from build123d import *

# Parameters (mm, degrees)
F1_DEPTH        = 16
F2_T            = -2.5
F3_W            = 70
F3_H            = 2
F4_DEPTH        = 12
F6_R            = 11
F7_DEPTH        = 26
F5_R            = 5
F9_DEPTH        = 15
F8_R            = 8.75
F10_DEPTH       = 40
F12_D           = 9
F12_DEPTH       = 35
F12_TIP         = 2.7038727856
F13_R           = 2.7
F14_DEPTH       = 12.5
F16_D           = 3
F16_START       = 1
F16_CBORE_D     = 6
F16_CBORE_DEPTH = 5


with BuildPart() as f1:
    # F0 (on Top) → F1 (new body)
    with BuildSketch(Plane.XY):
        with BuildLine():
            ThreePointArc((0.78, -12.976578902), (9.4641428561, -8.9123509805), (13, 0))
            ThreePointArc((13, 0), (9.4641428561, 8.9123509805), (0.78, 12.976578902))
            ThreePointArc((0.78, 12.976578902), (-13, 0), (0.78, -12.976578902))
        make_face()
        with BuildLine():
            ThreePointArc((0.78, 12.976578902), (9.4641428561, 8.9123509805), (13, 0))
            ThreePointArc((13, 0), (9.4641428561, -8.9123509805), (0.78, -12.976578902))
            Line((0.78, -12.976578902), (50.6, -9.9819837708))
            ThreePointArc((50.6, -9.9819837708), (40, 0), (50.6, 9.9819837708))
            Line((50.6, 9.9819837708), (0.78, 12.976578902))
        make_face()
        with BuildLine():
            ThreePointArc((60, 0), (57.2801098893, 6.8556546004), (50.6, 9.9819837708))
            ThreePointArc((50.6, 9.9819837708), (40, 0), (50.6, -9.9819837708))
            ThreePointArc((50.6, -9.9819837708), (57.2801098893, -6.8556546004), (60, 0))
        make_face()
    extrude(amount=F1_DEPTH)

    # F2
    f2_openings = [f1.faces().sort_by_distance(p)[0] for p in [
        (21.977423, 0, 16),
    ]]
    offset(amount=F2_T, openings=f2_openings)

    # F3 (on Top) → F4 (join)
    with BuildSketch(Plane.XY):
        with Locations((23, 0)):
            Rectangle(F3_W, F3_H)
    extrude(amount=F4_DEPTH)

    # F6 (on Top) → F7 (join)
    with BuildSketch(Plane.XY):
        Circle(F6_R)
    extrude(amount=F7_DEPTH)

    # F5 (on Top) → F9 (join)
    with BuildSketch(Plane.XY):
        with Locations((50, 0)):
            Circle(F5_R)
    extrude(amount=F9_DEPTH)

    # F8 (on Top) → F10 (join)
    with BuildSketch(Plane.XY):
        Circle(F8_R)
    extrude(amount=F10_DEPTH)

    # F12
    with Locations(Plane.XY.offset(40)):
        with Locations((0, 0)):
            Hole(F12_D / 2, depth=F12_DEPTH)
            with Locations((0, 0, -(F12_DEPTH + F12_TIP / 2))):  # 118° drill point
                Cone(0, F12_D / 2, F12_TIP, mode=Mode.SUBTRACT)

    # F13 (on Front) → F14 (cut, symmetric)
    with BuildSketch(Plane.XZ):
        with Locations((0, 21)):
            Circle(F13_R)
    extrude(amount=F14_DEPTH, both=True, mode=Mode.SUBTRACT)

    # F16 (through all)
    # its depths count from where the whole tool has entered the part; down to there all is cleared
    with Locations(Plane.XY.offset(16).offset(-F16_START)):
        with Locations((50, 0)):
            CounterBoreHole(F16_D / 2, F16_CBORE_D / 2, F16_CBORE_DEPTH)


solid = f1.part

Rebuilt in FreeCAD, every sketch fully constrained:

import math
import FreeCAD as App
import Part
import Sketcher
from FreeCAD import Vector
Q = App.Units.Quantity


def faces_at(feature, points):
    """Names of the faces that lie closest to the given points."""
    faces = feature.Shape.Faces
    near = lambda p: min(range(len(faces)), key=lambda i: faces[i].distToShape(Part.Vertex(*p))[0])
    return sorted({f"Face{near(p) + 1}" for p in points})


def add_polygon(sketch, points):
    """Adds a closed chain of lines whose ends are joined by coincident constraints."""
    first, n = sketch.GeometryCount, len(points)
    for a, b in zip(points, points[1:] + points[:1]):
        sketch.addGeometry(Part.LineSegment(App.Vector(*a, 0), App.Vector(*b, 0)), False)
    for i in range(n):
        sketch.addConstraint(Sketcher.Constraint("Coincident", first + i, 2, first + (i + 1) % n, 1))

doc = App.newDocument("Part")
params = doc.addObject("Spreadsheet::Sheet", "Params")
for row, (alias, value) in enumerate([
    ("sketch1_radius", "13 mm"),
    ("sketch1_radius2", "10 mm"),
    ("pad1_length", "16 mm"),
    ("thickness_wall", "2.5 mm"),
    ("sketch2_width", "70 mm"),
    ("sketch2_height", "2 mm"),
    ("pad2_length", "12 mm"),
    ("sketch3_diameter", "22 mm"),
    ("pad3_length", "26 mm"),
    ("sketch4_diameter", "10 mm"),
    ("pad4_length", "15 mm"),
    ("sketch5_diameter", "17.5 mm"),
    ("pad5_length", "40 mm"),
    ("sketch6_diameter", "9 mm"),
    ("hole_diameter", "9 mm"),
    ("hole_depth", "35 mm"),
    ("sketch7_diameter", "5.4 mm"),
    ("pocket1_length", "25 mm"),
    ("sketch8_diameter", "3 mm"),
    ("hole2_diameter", "3 mm"),
    ("hole2_cbore_diameter", "6 mm"),
    ("hole2_cbore_depth", "5 mm"),
], start=1):
    params.set(f"A{row}", alias)
    params.set(f"B{row}", "=" + value)
    params.setAlias(f"B{row}", alias)

body = doc.addObject("PartDesign::Body", "Body")

# Sketch on XY plane
sketch1 = body.newObject("Sketcher::SketchObject", "Sketch")
sketch1.AttachmentSupport = (doc.getObject("XY_Plane"), [""])
sketch1.MapMode = "FlatFace"
sketch1.addGeometry([
    Part.ArcOfCircle(Part.Circle(Vector(0, 0, 0), Vector(0, 0, 1), 13), math.radians(87), math.radians(273)),  # 0
    Part.LineSegment(Vector(1, -13, 0), Vector(51, -10, 0)),  # 1
    Part.ArcOfCircle(Part.Circle(Vector(50, 0, 0), Vector(0, 0, 1), 10), math.radians(-87), math.radians(0)),  # 2
    Part.ArcOfCircle(Part.Circle(Vector(50, 0, 0), Vector(0, 0, 1), 10), math.radians(0), math.radians(87)),  # 3
    Part.LineSegment(Vector(51, 10, 0), Vector(1, 13, 0)),  # 4
], False)
sketch1.addConstraint([
    Sketcher.Constraint("Tangent", 0, 2, 1, 1),
    Sketcher.Constraint("Tangent", 1, 2, 2, 1),
    Sketcher.Constraint("Tangent", 2, 2, 3, 1),
    Sketcher.Constraint("Tangent", 3, 2, 4, 1),
    Sketcher.Constraint("Tangent", 4, 2, 0, 1),
    Sketcher.Constraint("Coincident", 0, 3, -1, 1),
    Sketcher.Constraint("Equal", 2, 3),
    Sketcher.Constraint("PointOnObject", 2, 3, -1),
    Sketcher.Constraint("PointOnObject", 2, 2, -1),
    Sketcher.Constraint("Radius", 0, Q("13 mm")),
    Sketcher.Constraint("Radius", 2, Q("10 mm")),
    Sketcher.Constraint("DistanceX", -1, 1, 2, 3, Q("50 mm")),
])
sketch1.setExpression("Constraints[9]", "Params.sketch1_radius")
sketch1.setExpression("Constraints[10]", "Params.sketch1_radius2")
pad1 = body.newObject("PartDesign::Pad", "Pad")
pad1.Profile = sketch1
pad1.setExpression("Length", "Params.pad1_length")
doc.recompute()

thickness = body.newObject("PartDesign::Thickness", "Thickness")
thickness.Base = (pad1, faces_at(pad1, [(23.5, 0, 16)]))
thickness.setExpression("Value", "Params.thickness_wall")
thickness.Reversed = True
thickness.Join = "Arc"

# Sketch on XY plane
sketch2 = body.newObject("Sketcher::SketchObject", "Sketch001")
sketch2.AttachmentSupport = (doc.getObject("XY_Plane"), [""])
sketch2.MapMode = "FlatFace"
add_polygon(sketch2, [(-12, 1), (-12, -1), (58, -1), (58, 1)])  # lines 0-3
sketch2.addConstraint([
    Sketcher.Constraint("Vertical", 0),
    Sketcher.Constraint("Horizontal", 1),
    Sketcher.Constraint("Vertical", 2),
    Sketcher.Constraint("Horizontal", 3),
    Sketcher.Constraint("DistanceX", 1, 1, 1, 2, Q("70 mm")),
    Sketcher.Constraint("DistanceY", 0, 2, 0, 1, Q("2 mm")),
    Sketcher.Constraint("DistanceX", 0, 2, -1, 1, Q("12 mm")),
    Sketcher.Constraint("DistanceY", 0, 2, -1, 1, Q("1 mm")),
])
sketch2.setExpression("Constraints[8]", "Params.sketch2_width")
sketch2.setExpression("Constraints[9]", "Params.sketch2_height")
pad2 = body.newObject("PartDesign::Pad", "Pad001")
pad2.Profile = sketch2
pad2.setExpression("Length", "Params.pad2_length")

# Sketch on XY plane
sketch3 = body.newObject("Sketcher::SketchObject", "Sketch002")
sketch3.AttachmentSupport = (doc.getObject("XY_Plane"), [""])
sketch3.MapMode = "FlatFace"
sketch3.addGeometry(Part.Circle(Vector(0, 0, 0), Vector(0, 0, 1), 11), False)
sketch3.addConstraint([
    Sketcher.Constraint("Coincident", 0, 3, -1, 1),
    Sketcher.Constraint("Diameter", 0, Q("22 mm")),
])
sketch3.setExpression("Constraints[1]", "Params.sketch3_diameter")
pad3 = body.newObject("PartDesign::Pad", "Pad002")
pad3.Profile = sketch3
pad3.setExpression("Length", "Params.pad3_length")

# Sketch on XY plane
sketch4 = body.newObject("Sketcher::SketchObject", "Sketch003")
sketch4.AttachmentSupport = (doc.getObject("XY_Plane"), [""])
sketch4.MapMode = "FlatFace"
sketch4.addGeometry(Part.Circle(Vector(50, 0, 0), Vector(0, 0, 1), 5), False)
sketch4.addConstraint([
    Sketcher.Constraint("PointOnObject", 0, 3, -1),
    Sketcher.Constraint("Diameter", 0, Q("10 mm")),
    Sketcher.Constraint("DistanceX", -1, 1, 0, 3, Q("50 mm")),
])
sketch4.setExpression("Constraints[1]", "Params.sketch4_diameter")
pad4 = body.newObject("PartDesign::Pad", "Pad003")
pad4.Profile = sketch4
pad4.setExpression("Length", "Params.pad4_length")

# Sketch on XY plane
sketch5 = body.newObject("Sketcher::SketchObject", "Sketch004")
sketch5.AttachmentSupport = (doc.getObject("XY_Plane"), [""])
sketch5.MapMode = "FlatFace"
sketch5.addGeometry(Part.Circle(Vector(0, 0, 0), Vector(0, 0, 1), 9), False)
sketch5.addConstraint([
    Sketcher.Constraint("Coincident", 0, 3, -1, 1),
    Sketcher.Constraint("Diameter", 0, Q("17.5 mm")),
])
sketch5.setExpression("Constraints[1]", "Params.sketch5_diameter")
pad5 = body.newObject("PartDesign::Pad", "Pad004")
pad5.Profile = sketch5
pad5.setExpression("Length", "Params.pad5_length")

# Sketch on XY plane
sketch6 = body.newObject("Sketcher::SketchObject", "Sketch005")
sketch6.AttachmentSupport = (doc.getObject("XY_Plane"), [""])
sketch6.MapMode = "FlatFace"
sketch6.AttachmentOffset = App.Placement(Vector(0, 0, 40), App.Rotation())
sketch6.addGeometry(Part.Circle(Vector(0, 0, 0), Vector(0, 0, 1), 4.5), False)
sketch6.addConstraint([
    Sketcher.Constraint("Coincident", 0, 3, -1, 1),
    Sketcher.Constraint("Diameter", 0, Q("9 mm")),
])
sketch6.setExpression("Constraints[1]", "Params.sketch6_diameter")
doc.recompute()
hole = body.newObject("PartDesign::Hole", "Hole")
hole.Profile = sketch6
hole.ThreadType = "None"
hole.setExpression("Diameter", "Params.hole_diameter")
hole.DepthType = "Dimension"
hole.setExpression("Depth", "Params.hole_depth")
hole.DrillPoint = "Angled"
hole.DrillPointAngle = 118

# Sketch on XZ plane
sketch7 = body.newObject("Sketcher::SketchObject", "Sketch006")
sketch7.AttachmentSupport = (doc.getObject("XZ_Plane"), [""])
sketch7.MapMode = "FlatFace"
sketch7.addGeometry(Part.Circle(Vector(0, 21, 0), Vector(0, 0, 1), 2.7), False)
sketch7.addConstraint([
    Sketcher.Constraint("PointOnObject", 0, 3, -2),
    Sketcher.Constraint("Diameter", 0, Q("5.4 mm")),
    Sketcher.Constraint("DistanceY", -1, 1, 0, 3, Q("21 mm")),
])
sketch7.setExpression("Constraints[1]", "Params.sketch7_diameter")
pocket1 = body.newObject("PartDesign::Pocket", "Pocket")
pocket1.Profile = sketch7
pocket1.setExpression("Length", "Params.pocket1_length")
pocket1.Midplane = True

# Sketch on XY plane
sketch8 = body.newObject("Sketcher::SketchObject", "Sketch007")
sketch8.AttachmentSupport = (doc.getObject("XY_Plane"), [""])
sketch8.MapMode = "FlatFace"
sketch8.AttachmentOffset = App.Placement(Vector(0, 0, 15), App.Rotation())
sketch8.addGeometry(Part.Circle(Vector(50, 0, 0), Vector(0, 0, 1), 1.5), False)
sketch8.addConstraint([
    Sketcher.Constraint("PointOnObject", 0, 3, -1),
    Sketcher.Constraint("Diameter", 0, Q("3 mm")),
    Sketcher.Constraint("DistanceX", -1, 1, 0, 3, Q("50 mm")),
])
sketch8.setExpression("Constraints[1]", "Params.sketch8_diameter")
doc.recompute()
hole2 = body.newObject("PartDesign::Hole", "Hole001")
hole2.Profile = sketch8
hole2.ThreadType = "None"
hole2.setExpression("Diameter", "Params.hole2_diameter")
hole2.DepthType = "ThroughAll"
hole2.HoleCutType = "Counterbore"
hole2.setExpression("HoleCutDiameter", "Params.hole2_cbore_diameter")
hole2.setExpression("HoleCutDepth", "Params.hole2_cbore_depth")

doc.recompute()
